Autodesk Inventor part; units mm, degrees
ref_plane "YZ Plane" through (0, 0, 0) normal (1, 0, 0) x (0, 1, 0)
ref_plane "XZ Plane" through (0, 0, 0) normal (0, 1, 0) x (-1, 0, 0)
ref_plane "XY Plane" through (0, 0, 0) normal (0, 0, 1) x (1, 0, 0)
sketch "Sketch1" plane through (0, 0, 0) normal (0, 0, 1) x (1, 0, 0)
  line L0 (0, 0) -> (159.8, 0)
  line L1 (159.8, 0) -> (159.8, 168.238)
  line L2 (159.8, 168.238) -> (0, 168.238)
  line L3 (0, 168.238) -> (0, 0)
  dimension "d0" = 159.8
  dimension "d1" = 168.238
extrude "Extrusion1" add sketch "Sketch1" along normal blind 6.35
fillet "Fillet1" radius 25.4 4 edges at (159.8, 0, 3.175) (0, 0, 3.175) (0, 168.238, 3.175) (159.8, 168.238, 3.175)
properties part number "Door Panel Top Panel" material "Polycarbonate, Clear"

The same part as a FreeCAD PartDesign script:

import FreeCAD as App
import Part
import Sketcher

V = App.Vector
Q = App.Units.Quantity


def edges_at(feature, points):
    """Names of the edges that pass closest to the given points."""
    edges = feature.Shape.Edges
    near = lambda p: min(range(len(edges)), key=lambda i: edges[i].distToShape(Part.Vertex(*p))[0])
    return sorted({f"Edge{near(p) + 1}" for p in points})

doc = App.newDocument("Part")
body = doc.addObject("PartDesign::Body", "Body")

# Sketch on XY plane
sketch1 = doc.addObject("Sketcher::SketchObject", "Sketch")
body.addObject(sketch1)
sketch1.AttachmentSupport = (doc.XY_Plane, [""])
sketch1.MapMode = "FlatFace"
sketch1.addGeometry(Part.LineSegment(V(0, 168, 0), V(0, 0, 0)), False)
sketch1.addGeometry(Part.LineSegment(V(0, 0, 0), V(160, 0, 0)), False)
sketch1.addGeometry(Part.LineSegment(V(160, 0, 0), V(160, 168, 0)), False)
sketch1.addGeometry(Part.LineSegment(V(160, 168, 0), V(0, 168, 0)), False)
sketch1.addConstraint(Sketcher.Constraint("Coincident", 0, 2, 1, 1))
sketch1.addConstraint(Sketcher.Constraint("Coincident", 1, 2, 2, 1))
sketch1.addConstraint(Sketcher.Constraint("Coincident", 2, 2, 3, 1))
sketch1.addConstraint(Sketcher.Constraint("Coincident", 3, 2, 0, 1))
sketch1.addConstraint(Sketcher.Constraint("Vertical", 0))
sketch1.addConstraint(Sketcher.Constraint("Horizontal", 1))
sketch1.addConstraint(Sketcher.Constraint("Vertical", 2))
sketch1.addConstraint(Sketcher.Constraint("Horizontal", 3))
sketch1.addConstraint(Sketcher.Constraint("Coincident", 0, 2, -1, 1))
sketch1.addConstraint(Sketcher.Constraint("DistanceX", 1, 1, 1, 2, 159.8))
sketch1.addConstraint(Sketcher.Constraint("DistanceY", 0, 2, 0, 1, 168.238))
pad1 = doc.addObject("PartDesign::Pad", "Pad")
body.addObject(pad1)
pad1.Profile = sketch1
pad1.Length = Q("0.25 in")
doc.recompute()

fillet = doc.addObject("PartDesign::Fillet", "Fillet")
body.addObject(fillet)
fillet.Base = (pad1, edges_at(pad1, [
    (159.8, 0, 3.175),
    (0, 0, 3.175),
    (0, 168.238, 3.175),
    (159.8, 168.238, 3.175),
]))
fillet.Radius = Q("1 in")

doc.recompute()
